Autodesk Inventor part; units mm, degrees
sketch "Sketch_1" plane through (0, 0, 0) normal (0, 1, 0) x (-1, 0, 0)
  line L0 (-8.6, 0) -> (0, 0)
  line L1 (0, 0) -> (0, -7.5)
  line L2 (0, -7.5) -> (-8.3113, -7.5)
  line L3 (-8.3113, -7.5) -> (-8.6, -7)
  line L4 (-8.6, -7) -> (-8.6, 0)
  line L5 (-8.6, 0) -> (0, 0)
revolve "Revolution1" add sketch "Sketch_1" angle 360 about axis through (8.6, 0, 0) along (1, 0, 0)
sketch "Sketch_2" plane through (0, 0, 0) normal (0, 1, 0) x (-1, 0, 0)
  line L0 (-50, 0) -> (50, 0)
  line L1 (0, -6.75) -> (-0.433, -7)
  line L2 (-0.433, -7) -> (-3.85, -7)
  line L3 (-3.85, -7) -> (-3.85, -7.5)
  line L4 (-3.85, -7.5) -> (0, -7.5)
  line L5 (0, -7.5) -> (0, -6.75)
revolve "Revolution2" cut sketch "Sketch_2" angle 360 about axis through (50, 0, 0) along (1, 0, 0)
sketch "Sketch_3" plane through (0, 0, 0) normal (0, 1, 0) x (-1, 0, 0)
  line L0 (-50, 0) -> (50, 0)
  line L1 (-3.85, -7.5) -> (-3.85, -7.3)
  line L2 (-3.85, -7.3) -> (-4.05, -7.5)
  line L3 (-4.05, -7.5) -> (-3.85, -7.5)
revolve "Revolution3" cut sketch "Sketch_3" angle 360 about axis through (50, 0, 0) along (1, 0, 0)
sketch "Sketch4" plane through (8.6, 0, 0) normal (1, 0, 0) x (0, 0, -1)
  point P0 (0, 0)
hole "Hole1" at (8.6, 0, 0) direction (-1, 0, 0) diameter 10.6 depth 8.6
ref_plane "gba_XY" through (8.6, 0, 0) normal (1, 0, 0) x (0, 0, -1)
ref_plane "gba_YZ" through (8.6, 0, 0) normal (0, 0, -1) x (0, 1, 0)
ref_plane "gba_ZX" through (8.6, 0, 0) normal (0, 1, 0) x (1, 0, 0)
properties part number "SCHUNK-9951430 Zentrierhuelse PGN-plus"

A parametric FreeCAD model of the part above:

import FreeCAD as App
import Part
import Sketcher
from FreeCAD import Vector
Q = App.Units.Quantity


def add_polygon(sketch, points):
    """Adds a closed chain of lines whose ends are joined by coincident constraints."""
    first, n = sketch.GeometryCount, len(points)
    for a, b in zip(points, points[1:] + points[:1]):
        sketch.addGeometry(Part.LineSegment(App.Vector(*a, 0), App.Vector(*b, 0)), False)
    for i in range(n):
        sketch.addConstraint(Sketcher.Constraint("Coincident", first + i, 2, first + (i + 1) % n, 1))

doc = App.newDocument("Part")
body = doc.addObject("PartDesign::Body", "Body")

# Sketch on XZ plane
sketch1 = body.newObject("Sketcher::SketchObject", "Sketch")
sketch1.AttachmentSupport = (doc.getObject("XZ_Plane"), [""])
sketch1.MapMode = "FlatFace"
add_polygon(sketch1, [(0, 0), (8.6, 0), (8.6, -7), (8.3, -7.5), (0, -7.5)])  # lines 0-4
sketch1.addConstraint(Sketcher.Constraint("Horizontal", 0))
sketch1.addConstraint(Sketcher.Constraint("Vertical", 1))
sketch1.addConstraint(Sketcher.Constraint("Horizontal", 3))
sketch1.addConstraint(Sketcher.Constraint("Vertical", 4))
sketch1.addConstraint(Sketcher.Constraint("Coincident", 4, 2, -1, 1))
sketch1.addConstraint(Sketcher.Constraint("DistanceY", 1, 2, 1, 1, 7.0))
sketch1.addConstraint(Sketcher.Constraint("DistanceX", 0, 1, 0, 2, 8.6))
sketch1.addConstraint(Sketcher.Constraint("DistanceY", 4, 1, 4, 2, 7.5))
sketch1.addConstraint(Sketcher.Constraint("DistanceX", 3, 2, 3, 1, 8.3113))
revolution = body.newObject("PartDesign::Revolution", "Revolution")
revolution.Profile = sketch1
revolution.ReferenceAxis = (sketch1, ["H_Axis"])
revolution.Angle = 360

# Sketch on XZ plane
sketch2 = body.newObject("Sketcher::SketchObject", "Sketch001")
sketch2.AttachmentSupport = (doc.getObject("XZ_Plane"), [""])
sketch2.MapMode = "FlatFace"
add_polygon(sketch2, [(0, -7.5), (0, -6.75), (0.43, -7), (3.85, -7), (3.85, -7.5)])  # lines 0-4
sketch2.addConstraint(Sketcher.Constraint("Vertical", 0))
sketch2.addConstraint(Sketcher.Constraint("Horizontal", 2))
sketch2.addConstraint(Sketcher.Constraint("Vertical", 3))
sketch2.addConstraint(Sketcher.Constraint("Horizontal", 4))
sketch2.addConstraint(Sketcher.Constraint("PointOnObject", 0, 2, -2))
sketch2.addConstraint(Sketcher.Constraint("Angle", 1, Q("-30.0007 deg")))
sketch2.addConstraint(Sketcher.Constraint("DistanceY", 3, 2, 3, 1, 0.5))
sketch2.addConstraint(Sketcher.Constraint("DistanceY", 1, 2, -1, 1, 7.0))
sketch2.addConstraint(Sketcher.Constraint("Distance", 1, 0.5))
sketch2.addConstraint(Sketcher.Constraint("DistanceX", 4, 2, 4, 1, 3.85))
groove = body.newObject("PartDesign::Groove", "Groove")
groove.Profile = sketch2
groove.ReferenceAxis = (sketch2, ["H_Axis"])
groove.Angle = 360

# Sketch on XZ plane
sketch3 = body.newObject("Sketcher::SketchObject", "Sketch002")
sketch3.AttachmentSupport = (doc.getObject("XZ_Plane"), [""])
sketch3.MapMode = "FlatFace"
add_polygon(sketch3, [(4.05, -7.5), (3.85, -7.5), (3.85, -7.3)])  # lines 0-2
sketch3.addConstraint(Sketcher.Constraint("Horizontal", 0))
sketch3.addConstraint(Sketcher.Constraint("Vertical", 1))
sketch3.addConstraint(Sketcher.Constraint("Equal", 0, 1))
sketch3.addConstraint(Sketcher.Constraint("DistanceX", 0, 2, 0, 1, 0.2))
sketch3.addConstraint(Sketcher.Constraint("DistanceY", 0, 2, -1, 1, 7.5))
sketch3.addConstraint(Sketcher.Constraint("DistanceX", -1, 1, 0, 2, 3.85))
groove2 = body.newObject("PartDesign::Groove", "Groove001")
groove2.Profile = sketch3
groove2.ReferenceAxis = (sketch3, ["H_Axis"])
groove2.Angle = 360

# Sketch on YZ plane
sketch4 = body.newObject("Sketcher::SketchObject", "Sketch003")
sketch4.AttachmentSupport = (doc.getObject("YZ_Plane"), [""])
sketch4.MapMode = "FlatFace"
sketch4.AttachmentOffset = App.Placement(Vector(0, 0, 8.6), App.Rotation())
sketch4.addGeometry(Part.Circle(Vector(0, 0, 0), Vector(0, 0, 1), 5), False)
sketch4.addConstraint(Sketcher.Constraint("Coincident", 0, 3, -1, 1))
sketch4.addConstraint(Sketcher.Constraint("Diameter", 0, 10.6))
doc.recompute()
hole = body.newObject("PartDesign::Hole", "Hole")
hole.Profile = sketch4
hole.ThreadType = "None"
hole.Diameter = 10.6
hole.DepthType = "Dimension"
hole.Depth = 8.6
hole.DrillPoint = "Flat"

doc.recompute()
